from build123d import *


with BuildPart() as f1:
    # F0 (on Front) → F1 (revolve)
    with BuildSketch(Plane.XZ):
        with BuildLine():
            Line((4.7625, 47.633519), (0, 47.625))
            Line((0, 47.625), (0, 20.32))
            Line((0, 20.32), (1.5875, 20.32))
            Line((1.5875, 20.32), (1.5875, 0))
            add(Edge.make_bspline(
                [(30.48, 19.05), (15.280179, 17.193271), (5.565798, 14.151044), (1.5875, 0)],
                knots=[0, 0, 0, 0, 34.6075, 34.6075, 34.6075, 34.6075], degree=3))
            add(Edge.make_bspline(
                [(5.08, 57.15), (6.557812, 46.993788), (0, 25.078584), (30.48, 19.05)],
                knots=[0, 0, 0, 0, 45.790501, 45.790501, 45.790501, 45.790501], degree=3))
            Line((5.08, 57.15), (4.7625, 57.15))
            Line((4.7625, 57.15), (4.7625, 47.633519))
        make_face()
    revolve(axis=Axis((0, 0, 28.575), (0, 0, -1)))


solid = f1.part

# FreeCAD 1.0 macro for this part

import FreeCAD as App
import Part
import Sketcher
Q = App.Units.Quantity

doc = App.newDocument("Part")
body = doc.addObject("PartDesign::Body", "Body")

# Sketch on XZ plane
sketch1 = body.newObject("Sketcher::SketchObject", "Sketch")
sketch1.AttachmentSupport = (doc.getObject("XZ_Plane"), [""])
sketch1.MapMode = "FlatFace"
sketch1.addGeometry([
    Part.LineSegment(App.Vector(4.7625, 47.633519, 0), App.Vector(0, 47.625, 0)),  # 0
    Part.LineSegment(App.Vector(0, 47.625, 0), App.Vector(0, 20.32, 0)),  # 1
    Part.LineSegment(App.Vector(0, 20.32, 0), App.Vector(1.5875, 20.32, 0)),  # 2
    Part.LineSegment(App.Vector(1.5875, 20.32, 0), App.Vector(1.5875, 0, 0)),  # 3
    Part.BSplineCurve([App.Vector(30.48, 19.05, 0), App.Vector(15.280179, 17.193271, 0), App.Vector(5.565798, 14.151044, 0), App.Vector(1.5875, 0, 0)], [4, 4], [0, 34.6075], False, 3, [1, 1, 1, 1], False),  # 4
    Part.BSplineCurve([App.Vector(5.08, 57.15, 0), App.Vector(6.557812, 46.993788, 0), App.Vector(0, 25.078584, 0), App.Vector(30.48, 19.05, 0)], [4, 4], [0, 45.790501], False, 3, [1, 1, 1, 1], False),  # 5
    Part.LineSegment(App.Vector(5.08, 57.15, 0), App.Vector(4.7625, 57.15, 0)),  # 6
    Part.LineSegment(App.Vector(4.7625, 57.15, 0), App.Vector(4.7625, 47.633519, 0)),  # 7
], False)
sketch1.addConstraint([
    Sketcher.Constraint("Block", 4),
    Sketcher.Constraint("Block", 5),
    Sketcher.Constraint("Coincident", 0, 2, 1, 1),
    Sketcher.Constraint("Coincident", 1, 2, 2, 1),
    Sketcher.Constraint("Coincident", 2, 2, 3, 1),
    Sketcher.Constraint("Coincident", 3, 2, 4, 2),
    Sketcher.Constraint("Coincident", 5, 1, 6, 1),
    Sketcher.Constraint("Coincident", 6, 2, 7, 1),
    Sketcher.Constraint("Coincident", 7, 2, 0, 1),
    Sketcher.Constraint("Vertical", 1),
    Sketcher.Constraint("Horizontal", 2),
    Sketcher.Constraint("Vertical", 3),
    Sketcher.Constraint("Horizontal", 6),
    Sketcher.Constraint("Vertical", 7),
    Sketcher.Constraint("PointOnObject", 0, 2, -2),
    Sketcher.Constraint("DistanceY", 3, 2, 3, 1, Q("0.8 in")),
    Sketcher.Constraint("DistanceY", 1, 2, 1, 1, Q("1.075 in")),
    Sketcher.Constraint("DistanceX", 6, 2, 6, 1, Q("0.0125 in")),
    Sketcher.Constraint("DistanceY", 7, 2, 7, 1, Q("9.516481 mm")),
])
revolution = body.newObject("PartDesign::Revolution", "Revolution")
revolution.Profile = sketch1
revolution.ReferenceAxis = (sketch1, ["V_Axis"])
revolution.Angle = 360

doc.recompute()
